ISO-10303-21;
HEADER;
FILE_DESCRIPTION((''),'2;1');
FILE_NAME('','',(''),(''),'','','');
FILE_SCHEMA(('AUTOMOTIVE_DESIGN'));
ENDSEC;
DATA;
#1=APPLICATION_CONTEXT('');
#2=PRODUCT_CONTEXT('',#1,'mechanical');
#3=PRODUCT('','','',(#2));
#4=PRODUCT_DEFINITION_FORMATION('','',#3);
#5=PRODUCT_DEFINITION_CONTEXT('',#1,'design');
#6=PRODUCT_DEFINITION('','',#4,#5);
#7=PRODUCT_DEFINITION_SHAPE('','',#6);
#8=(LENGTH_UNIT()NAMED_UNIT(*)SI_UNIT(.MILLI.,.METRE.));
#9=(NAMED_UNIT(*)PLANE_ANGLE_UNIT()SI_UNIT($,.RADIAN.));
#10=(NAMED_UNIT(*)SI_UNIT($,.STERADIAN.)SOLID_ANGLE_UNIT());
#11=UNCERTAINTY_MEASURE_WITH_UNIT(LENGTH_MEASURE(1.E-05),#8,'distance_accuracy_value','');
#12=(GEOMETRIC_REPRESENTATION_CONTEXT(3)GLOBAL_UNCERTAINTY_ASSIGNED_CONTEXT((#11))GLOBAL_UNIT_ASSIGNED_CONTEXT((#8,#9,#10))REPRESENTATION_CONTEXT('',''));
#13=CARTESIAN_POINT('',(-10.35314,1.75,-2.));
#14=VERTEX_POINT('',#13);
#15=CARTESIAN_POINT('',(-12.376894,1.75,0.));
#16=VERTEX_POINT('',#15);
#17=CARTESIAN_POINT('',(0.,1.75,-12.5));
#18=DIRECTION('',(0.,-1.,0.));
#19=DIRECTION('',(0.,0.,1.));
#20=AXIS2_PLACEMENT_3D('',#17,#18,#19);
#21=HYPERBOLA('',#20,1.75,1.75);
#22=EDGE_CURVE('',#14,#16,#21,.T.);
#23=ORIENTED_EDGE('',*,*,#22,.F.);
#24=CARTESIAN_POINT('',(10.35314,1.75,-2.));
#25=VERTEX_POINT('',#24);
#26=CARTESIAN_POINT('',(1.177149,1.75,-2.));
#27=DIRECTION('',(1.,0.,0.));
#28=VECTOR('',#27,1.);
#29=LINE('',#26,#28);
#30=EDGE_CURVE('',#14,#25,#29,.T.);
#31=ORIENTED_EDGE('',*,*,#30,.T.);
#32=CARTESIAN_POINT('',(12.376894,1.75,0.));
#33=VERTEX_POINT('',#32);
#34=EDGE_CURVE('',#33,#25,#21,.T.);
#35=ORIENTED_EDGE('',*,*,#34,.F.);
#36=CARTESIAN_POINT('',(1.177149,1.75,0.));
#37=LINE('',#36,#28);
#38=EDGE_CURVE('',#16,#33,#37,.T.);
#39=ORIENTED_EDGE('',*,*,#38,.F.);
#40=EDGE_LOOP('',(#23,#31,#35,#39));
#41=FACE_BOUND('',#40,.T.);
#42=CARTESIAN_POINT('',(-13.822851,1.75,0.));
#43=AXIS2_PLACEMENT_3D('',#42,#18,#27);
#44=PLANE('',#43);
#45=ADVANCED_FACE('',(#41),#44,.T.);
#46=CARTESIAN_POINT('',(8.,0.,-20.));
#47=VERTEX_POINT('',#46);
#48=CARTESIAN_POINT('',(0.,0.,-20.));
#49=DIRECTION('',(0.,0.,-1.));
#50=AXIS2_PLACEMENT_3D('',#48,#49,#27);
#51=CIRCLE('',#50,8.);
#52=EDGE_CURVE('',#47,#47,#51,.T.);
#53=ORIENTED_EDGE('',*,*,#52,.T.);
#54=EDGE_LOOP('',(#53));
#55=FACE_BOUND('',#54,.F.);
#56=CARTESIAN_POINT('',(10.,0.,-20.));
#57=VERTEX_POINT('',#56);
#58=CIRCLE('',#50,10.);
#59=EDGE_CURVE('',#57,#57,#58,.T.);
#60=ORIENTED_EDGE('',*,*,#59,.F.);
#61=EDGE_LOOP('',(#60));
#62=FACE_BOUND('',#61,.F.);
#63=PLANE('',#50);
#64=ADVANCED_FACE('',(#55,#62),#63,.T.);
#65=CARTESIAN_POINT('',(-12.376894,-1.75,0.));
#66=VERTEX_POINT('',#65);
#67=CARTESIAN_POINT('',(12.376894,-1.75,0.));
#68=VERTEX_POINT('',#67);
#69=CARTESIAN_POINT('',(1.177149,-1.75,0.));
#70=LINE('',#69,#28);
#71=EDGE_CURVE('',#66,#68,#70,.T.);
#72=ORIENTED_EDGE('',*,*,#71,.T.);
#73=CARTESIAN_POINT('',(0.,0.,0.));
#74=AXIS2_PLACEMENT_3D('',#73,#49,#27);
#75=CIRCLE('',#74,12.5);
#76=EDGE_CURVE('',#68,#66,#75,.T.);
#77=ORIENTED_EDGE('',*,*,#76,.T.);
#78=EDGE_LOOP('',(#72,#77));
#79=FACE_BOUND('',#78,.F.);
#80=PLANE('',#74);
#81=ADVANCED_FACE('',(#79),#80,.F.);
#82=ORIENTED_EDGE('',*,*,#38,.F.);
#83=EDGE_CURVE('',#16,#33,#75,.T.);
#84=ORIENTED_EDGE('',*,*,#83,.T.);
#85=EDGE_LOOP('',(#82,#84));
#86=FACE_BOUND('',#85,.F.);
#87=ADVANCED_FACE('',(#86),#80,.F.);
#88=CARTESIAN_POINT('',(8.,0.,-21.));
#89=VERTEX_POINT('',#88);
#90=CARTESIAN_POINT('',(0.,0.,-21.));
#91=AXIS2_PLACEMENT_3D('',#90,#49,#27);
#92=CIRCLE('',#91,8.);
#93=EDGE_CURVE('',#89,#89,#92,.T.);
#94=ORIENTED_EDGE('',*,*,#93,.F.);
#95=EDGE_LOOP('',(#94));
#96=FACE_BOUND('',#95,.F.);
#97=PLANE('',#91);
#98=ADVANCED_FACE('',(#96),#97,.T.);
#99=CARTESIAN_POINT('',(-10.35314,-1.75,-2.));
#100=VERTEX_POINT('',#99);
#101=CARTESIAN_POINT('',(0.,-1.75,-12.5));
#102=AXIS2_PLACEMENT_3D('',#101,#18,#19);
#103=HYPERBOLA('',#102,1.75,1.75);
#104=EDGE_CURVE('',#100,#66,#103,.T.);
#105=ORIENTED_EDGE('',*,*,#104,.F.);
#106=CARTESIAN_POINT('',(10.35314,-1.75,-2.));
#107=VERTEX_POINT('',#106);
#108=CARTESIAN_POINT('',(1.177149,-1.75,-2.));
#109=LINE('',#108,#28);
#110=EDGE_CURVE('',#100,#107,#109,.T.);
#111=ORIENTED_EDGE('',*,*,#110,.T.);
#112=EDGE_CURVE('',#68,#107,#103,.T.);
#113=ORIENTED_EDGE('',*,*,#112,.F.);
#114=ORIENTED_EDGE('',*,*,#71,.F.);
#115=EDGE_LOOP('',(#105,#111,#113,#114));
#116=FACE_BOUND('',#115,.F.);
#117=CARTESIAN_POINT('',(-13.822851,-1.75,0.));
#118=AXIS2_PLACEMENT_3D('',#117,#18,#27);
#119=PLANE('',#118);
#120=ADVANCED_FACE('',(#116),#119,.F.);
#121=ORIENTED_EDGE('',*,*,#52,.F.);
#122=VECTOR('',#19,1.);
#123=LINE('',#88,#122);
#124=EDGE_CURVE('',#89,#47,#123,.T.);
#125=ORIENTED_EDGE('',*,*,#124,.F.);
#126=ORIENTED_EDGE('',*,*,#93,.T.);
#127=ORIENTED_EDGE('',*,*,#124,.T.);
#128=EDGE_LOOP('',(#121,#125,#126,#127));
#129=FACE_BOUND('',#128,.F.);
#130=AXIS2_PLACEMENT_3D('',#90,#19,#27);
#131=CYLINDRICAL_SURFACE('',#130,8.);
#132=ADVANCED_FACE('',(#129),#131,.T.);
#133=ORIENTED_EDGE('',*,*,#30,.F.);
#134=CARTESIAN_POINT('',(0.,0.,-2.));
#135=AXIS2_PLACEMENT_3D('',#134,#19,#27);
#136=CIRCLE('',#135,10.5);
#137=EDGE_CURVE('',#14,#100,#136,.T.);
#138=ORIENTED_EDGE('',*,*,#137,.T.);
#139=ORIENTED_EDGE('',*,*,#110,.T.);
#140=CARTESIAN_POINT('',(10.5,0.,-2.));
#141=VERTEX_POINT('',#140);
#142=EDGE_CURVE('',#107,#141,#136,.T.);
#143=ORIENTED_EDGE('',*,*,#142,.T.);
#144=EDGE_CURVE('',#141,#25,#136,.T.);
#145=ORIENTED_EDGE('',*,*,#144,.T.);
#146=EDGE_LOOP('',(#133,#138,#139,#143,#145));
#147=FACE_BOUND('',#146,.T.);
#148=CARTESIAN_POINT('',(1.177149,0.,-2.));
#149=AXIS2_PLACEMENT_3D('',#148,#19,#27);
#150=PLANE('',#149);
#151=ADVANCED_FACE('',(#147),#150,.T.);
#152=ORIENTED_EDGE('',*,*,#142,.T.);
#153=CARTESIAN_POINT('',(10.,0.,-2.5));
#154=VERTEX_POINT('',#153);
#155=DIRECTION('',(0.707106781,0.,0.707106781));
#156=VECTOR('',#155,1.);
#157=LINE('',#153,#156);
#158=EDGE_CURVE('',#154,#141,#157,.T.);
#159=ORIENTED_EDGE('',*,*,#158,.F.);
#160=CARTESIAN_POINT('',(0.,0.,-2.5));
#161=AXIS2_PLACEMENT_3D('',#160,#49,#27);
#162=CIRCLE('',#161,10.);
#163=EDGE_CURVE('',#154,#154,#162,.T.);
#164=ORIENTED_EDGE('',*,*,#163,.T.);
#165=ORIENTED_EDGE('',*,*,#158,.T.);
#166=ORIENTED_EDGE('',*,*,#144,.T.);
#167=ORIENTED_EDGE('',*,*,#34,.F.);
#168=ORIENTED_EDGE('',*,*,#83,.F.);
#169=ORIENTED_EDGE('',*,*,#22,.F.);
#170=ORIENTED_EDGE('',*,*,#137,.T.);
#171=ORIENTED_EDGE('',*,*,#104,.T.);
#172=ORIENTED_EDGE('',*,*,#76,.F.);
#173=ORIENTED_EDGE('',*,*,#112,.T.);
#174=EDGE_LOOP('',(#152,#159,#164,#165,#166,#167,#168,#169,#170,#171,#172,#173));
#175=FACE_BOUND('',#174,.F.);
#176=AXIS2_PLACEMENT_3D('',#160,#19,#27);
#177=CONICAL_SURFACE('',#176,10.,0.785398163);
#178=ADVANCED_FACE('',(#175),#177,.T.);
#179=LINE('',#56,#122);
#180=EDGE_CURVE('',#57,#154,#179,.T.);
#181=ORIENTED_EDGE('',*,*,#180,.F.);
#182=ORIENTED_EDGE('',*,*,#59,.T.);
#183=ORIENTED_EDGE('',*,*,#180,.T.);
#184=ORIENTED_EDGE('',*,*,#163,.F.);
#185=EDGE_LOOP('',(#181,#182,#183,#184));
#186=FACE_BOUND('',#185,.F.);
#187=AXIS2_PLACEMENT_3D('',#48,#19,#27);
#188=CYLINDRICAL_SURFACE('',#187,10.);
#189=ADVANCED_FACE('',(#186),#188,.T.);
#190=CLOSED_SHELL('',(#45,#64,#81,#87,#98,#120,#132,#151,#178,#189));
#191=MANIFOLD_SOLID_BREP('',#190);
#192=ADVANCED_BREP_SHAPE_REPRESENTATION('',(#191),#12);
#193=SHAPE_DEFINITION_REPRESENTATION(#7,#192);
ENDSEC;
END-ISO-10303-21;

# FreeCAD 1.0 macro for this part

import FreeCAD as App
import Part
import Sketcher

V = App.Vector
Q = App.Units.Quantity


def add_polygon(sketch, points):
    """Adds a closed chain of lines whose ends are joined by coincident constraints."""
    first, n = sketch.GeometryCount, len(points)
    for a, b in zip(points, points[1:] + points[:1]):
        sketch.addGeometry(Part.LineSegment(App.Vector(*a, 0), App.Vector(*b, 0)), False)
    for i in range(n):
        sketch.addConstraint(Sketcher.Constraint("Coincident", first + i, 2, first + (i + 1) % n, 1))

doc = App.newDocument("Part")
body = doc.addObject("PartDesign::Body", "Body")

# Sketch on XZ plane
sketch1 = body.newObject("Sketcher::SketchObject", "Sketch")
sketch1.AttachmentSupport = (doc.getObject("XZ_Plane"), [""])
sketch1.MapMode = "FlatFace"
add_polygon(sketch1, [(12.5, 0), (0, 0), (0, -21), (8, -21), (8, -20), (10, -20), (10, -2.5)])  # lines 0-6
sketch1.addConstraint(Sketcher.Constraint("Horizontal", 0))
sketch1.addConstraint(Sketcher.Constraint("Vertical", 1))
sketch1.addConstraint(Sketcher.Constraint("Horizontal", 2))
sketch1.addConstraint(Sketcher.Constraint("Vertical", 3))
sketch1.addConstraint(Sketcher.Constraint("Horizontal", 4))
sketch1.addConstraint(Sketcher.Constraint("Vertical", 5))
sketch1.addConstraint(Sketcher.Constraint("Coincident", 0, 2, -1, 1))
sketch1.addConstraint(Sketcher.Constraint("DistanceX", 2, 1, 2, 2, 8.0))
sketch1.addConstraint(Sketcher.Constraint("DistanceX", 4, 1, 4, 2, 2.0))
sketch1.addConstraint(Sketcher.Constraint("DistanceY", 1, 2, 1, 1, 21.0))
sketch1.addConstraint(Sketcher.Constraint("DistanceY", 3, 1, 3, 2, 1.0))
sketch1.addConstraint(Sketcher.Constraint("Angle", 6, Q("45 deg")))
sketch1.addConstraint(Sketcher.Constraint("DistanceX", 0, 2, 0, 1, 12.5))
revolution = body.newObject("PartDesign::Revolution", "Revolution")
revolution.Profile = sketch1
revolution.ReferenceAxis = (sketch1, ["V_Axis"])
revolution.Angle = 360

# Sketch on XY plane
sketch2 = body.newObject("Sketcher::SketchObject", "Sketch001")
sketch2.AttachmentSupport = (doc.getObject("XY_Plane"), [""])
sketch2.MapMode = "FlatFace"
add_polygon(sketch2, [(-13.8, 1.8), (-13.8, -1.8), (16.2, -1.8), (16.2, 1.8)])  # lines 0-3
sketch2.addConstraint(Sketcher.Constraint("Vertical", 0))
sketch2.addConstraint(Sketcher.Constraint("Horizontal", 1))
sketch2.addConstraint(Sketcher.Constraint("Vertical", 2))
sketch2.addConstraint(Sketcher.Constraint("Horizontal", 3))
sketch2.addConstraint(Sketcher.Constraint("DistanceX", 1, 1, 1, 2, 30.0))
sketch2.addConstraint(Sketcher.Constraint("DistanceY", 0, 2, 0, 1, 3.5))
sketch2.addConstraint(Sketcher.Constraint("DistanceY", 0, 2, -1, 1, 1.75))
sketch2.addConstraint(Sketcher.Constraint("DistanceX", 0, 2, -1, 1, 13.822851))
pocket1 = body.newObject("PartDesign::Pocket", "Pocket")
pocket1.Profile = sketch2
pocket1.Length = 2

doc.recompute()
